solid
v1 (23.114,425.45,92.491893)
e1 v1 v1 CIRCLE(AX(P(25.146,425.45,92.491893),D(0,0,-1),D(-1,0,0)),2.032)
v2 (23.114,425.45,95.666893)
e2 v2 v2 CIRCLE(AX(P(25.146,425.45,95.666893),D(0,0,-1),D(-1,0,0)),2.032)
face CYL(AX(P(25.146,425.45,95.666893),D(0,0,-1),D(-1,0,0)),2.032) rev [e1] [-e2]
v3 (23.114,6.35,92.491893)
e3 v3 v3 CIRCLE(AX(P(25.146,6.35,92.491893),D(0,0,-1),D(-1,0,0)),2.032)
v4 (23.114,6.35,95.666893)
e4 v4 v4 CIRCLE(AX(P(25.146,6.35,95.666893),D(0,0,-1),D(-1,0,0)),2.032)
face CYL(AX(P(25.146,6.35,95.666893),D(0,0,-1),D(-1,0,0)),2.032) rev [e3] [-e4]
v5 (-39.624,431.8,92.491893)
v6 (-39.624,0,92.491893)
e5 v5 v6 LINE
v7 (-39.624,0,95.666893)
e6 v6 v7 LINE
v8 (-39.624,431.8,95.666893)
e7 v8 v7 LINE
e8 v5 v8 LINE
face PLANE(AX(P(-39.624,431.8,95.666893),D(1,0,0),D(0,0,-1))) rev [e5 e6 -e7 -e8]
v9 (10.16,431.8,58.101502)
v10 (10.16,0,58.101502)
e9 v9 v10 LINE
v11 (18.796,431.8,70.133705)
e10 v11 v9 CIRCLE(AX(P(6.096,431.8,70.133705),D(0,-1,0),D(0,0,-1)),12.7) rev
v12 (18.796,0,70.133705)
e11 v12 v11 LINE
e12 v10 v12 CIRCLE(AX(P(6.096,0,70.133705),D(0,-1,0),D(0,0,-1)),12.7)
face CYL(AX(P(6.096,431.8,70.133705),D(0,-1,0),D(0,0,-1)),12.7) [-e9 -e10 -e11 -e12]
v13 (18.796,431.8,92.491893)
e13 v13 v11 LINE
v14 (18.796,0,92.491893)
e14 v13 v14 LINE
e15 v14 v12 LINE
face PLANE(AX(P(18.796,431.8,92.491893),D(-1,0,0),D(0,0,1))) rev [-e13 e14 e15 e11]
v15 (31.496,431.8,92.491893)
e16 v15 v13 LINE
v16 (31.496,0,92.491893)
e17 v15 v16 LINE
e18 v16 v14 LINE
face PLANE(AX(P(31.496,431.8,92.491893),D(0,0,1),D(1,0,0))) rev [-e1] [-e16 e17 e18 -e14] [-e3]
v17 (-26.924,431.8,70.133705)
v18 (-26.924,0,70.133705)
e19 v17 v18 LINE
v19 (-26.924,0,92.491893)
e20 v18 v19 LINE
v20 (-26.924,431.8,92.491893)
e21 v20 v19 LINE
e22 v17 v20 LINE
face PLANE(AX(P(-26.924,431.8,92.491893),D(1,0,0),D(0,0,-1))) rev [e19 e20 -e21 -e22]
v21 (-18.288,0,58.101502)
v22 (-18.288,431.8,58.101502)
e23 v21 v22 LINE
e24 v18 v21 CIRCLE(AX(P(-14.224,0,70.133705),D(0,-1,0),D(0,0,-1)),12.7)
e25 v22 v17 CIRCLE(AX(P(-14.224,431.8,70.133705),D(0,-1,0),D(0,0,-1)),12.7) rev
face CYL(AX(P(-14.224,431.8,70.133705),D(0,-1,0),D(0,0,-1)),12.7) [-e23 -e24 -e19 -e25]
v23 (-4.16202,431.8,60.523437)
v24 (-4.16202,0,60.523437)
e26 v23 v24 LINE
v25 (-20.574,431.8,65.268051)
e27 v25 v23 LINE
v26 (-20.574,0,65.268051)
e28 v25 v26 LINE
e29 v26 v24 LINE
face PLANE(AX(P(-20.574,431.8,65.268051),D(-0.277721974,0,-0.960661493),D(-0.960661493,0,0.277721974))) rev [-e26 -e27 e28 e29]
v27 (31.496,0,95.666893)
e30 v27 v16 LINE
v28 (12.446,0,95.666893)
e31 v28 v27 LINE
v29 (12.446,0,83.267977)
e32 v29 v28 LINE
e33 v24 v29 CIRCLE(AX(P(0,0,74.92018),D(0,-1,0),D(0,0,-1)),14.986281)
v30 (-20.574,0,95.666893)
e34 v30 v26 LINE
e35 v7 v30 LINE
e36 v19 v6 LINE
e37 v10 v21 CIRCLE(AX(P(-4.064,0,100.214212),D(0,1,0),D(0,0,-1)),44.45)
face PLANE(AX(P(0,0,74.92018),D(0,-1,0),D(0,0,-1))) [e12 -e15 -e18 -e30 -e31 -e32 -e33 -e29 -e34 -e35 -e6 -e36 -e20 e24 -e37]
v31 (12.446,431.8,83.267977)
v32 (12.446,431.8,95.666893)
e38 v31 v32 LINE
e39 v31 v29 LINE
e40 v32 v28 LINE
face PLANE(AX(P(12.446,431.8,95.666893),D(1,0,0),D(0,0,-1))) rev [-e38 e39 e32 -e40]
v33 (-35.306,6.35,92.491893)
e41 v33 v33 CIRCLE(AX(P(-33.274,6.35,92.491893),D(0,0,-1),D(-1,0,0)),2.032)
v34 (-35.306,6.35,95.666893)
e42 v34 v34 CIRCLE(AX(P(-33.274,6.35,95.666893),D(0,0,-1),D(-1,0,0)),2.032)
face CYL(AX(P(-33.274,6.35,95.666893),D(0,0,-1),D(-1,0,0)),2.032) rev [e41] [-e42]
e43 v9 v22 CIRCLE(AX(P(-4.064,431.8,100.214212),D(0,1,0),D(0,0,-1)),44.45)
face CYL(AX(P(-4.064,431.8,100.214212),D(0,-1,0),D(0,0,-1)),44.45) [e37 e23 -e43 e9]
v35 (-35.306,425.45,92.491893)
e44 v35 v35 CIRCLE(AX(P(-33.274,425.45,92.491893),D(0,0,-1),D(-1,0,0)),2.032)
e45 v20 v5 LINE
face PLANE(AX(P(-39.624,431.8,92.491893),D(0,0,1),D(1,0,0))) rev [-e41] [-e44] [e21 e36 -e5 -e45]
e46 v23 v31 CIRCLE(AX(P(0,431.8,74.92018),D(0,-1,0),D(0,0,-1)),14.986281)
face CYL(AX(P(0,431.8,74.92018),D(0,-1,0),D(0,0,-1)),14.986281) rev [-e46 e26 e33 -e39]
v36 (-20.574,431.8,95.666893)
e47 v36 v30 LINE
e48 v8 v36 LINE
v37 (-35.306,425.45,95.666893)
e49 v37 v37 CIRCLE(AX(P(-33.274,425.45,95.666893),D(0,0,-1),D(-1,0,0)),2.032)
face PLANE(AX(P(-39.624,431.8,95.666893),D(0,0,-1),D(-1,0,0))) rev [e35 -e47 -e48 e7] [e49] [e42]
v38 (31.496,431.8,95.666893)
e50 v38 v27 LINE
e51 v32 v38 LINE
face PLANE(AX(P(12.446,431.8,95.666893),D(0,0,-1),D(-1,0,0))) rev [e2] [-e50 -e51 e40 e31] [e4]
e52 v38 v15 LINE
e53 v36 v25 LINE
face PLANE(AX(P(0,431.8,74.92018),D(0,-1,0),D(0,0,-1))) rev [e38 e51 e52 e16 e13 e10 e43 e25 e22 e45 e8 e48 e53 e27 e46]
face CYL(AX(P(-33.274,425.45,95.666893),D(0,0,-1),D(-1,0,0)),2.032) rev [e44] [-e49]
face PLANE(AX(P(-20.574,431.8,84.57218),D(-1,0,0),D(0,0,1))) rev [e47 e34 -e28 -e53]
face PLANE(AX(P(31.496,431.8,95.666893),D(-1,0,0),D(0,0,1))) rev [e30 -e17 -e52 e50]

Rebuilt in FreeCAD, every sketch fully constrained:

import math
import FreeCAD as App
import Part
import Sketcher
Q = App.Units.Quantity


def edges_at(feature, points):
    """Names of the edges that pass closest to the given points."""
    edges = feature.Shape.Edges
    near = lambda p: min(range(len(edges)), key=lambda i: edges[i].distToShape(Part.Vertex(*p))[0])
    return sorted({f"Edge{near(p) + 1}" for p in points})

doc = App.newDocument("Part")
body = doc.addObject("PartDesign::Body", "Body")

sketch1 = doc.addObject("Sketcher::SketchObject", "Sketch")
body.addObject(sketch1)
sketch1.AttachmentSupport = (doc.XZ_Plane, [""])
sketch1.MapMode = "FlatFace"
sketch1.addGeometry([
    Part.LineSegment(App.Vector(12.4, 83.3, 0), App.Vector(12.4, 95.7, 0)),
    Part.LineSegment(App.Vector(12.4, 95.7, 0), App.Vector(31.5, 95.7, 0)),
    Part.LineSegment(App.Vector(31.5, 95.7, 0), App.Vector(31.5, 92.5, 0)),
    Part.LineSegment(App.Vector(31.5, 92.5, 0), App.Vector(18.8, 92.5, 0)),
    Part.LineSegment(App.Vector(18.8, 92.5, 0), App.Vector(18.8, 62.1, 0)),
    Part.ArcOfCircle(Part.Circle(App.Vector(-4.1, 100.2, 0), App.Vector(0, 0, 1), 44.4), math.radians(-121), math.radians(-59)),
    Part.LineSegment(App.Vector(-26.9, 62.1, 0), App.Vector(-26.9, 92.5, 0)),
    Part.LineSegment(App.Vector(-26.9, 92.5, 0), App.Vector(-39.6, 92.5, 0)),
    Part.LineSegment(App.Vector(-39.6, 92.5, 0), App.Vector(-39.6, 95.7, 0)),
    Part.LineSegment(App.Vector(-39.6, 95.7, 0), App.Vector(-20.6, 95.7, 0)),
    Part.LineSegment(App.Vector(-20.6, 95.7, 0), App.Vector(-20.6, 65.3, 0)),
    Part.LineSegment(App.Vector(-20.6, 65.3, 0), App.Vector(-4.2, 60.5, 0)),
    Part.ArcOfCircle(Part.Circle(App.Vector(0, 74.9, 0), App.Vector(0, 0, 1), 15), math.radians(-106), math.radians(34)),
], False)
sketch1.addConstraint([
    Sketcher.Constraint("Coincident", 0, 2, 1, 1),
    Sketcher.Constraint("Coincident", 1, 2, 2, 1),
    Sketcher.Constraint("Coincident", 2, 2, 3, 1),
    Sketcher.Constraint("Coincident", 3, 2, 4, 1),
    Sketcher.Constraint("Coincident", 4, 2, 5, 2),
    Sketcher.Constraint("Coincident", 5, 1, 6, 1),
    Sketcher.Constraint("Coincident", 6, 2, 7, 1),
    Sketcher.Constraint("Coincident", 7, 2, 8, 1),
    Sketcher.Constraint("Coincident", 8, 2, 9, 1),
    Sketcher.Constraint("Coincident", 9, 2, 10, 1),
    Sketcher.Constraint("Coincident", 10, 2, 11, 1),
    Sketcher.Constraint("Tangent", 11, 2, 12, 1),
    Sketcher.Constraint("Coincident", 12, 2, 0, 1),
    Sketcher.Constraint("Vertical", 0),
    Sketcher.Constraint("Horizontal", 1),
    Sketcher.Constraint("Vertical", 2),
    Sketcher.Constraint("Horizontal", 3),
    Sketcher.Constraint("Vertical", 4),
    Sketcher.Constraint("Vertical", 6),
    Sketcher.Constraint("Horizontal", 7),
    Sketcher.Constraint("Vertical", 8),
    Sketcher.Constraint("Horizontal", 9),
    Sketcher.Constraint("Vertical", 10),
    Sketcher.Constraint("PointOnObject", 12, 3, -2),
    Sketcher.Constraint("Horizontal", 4, 2, 5, 1),
    Sketcher.Constraint("Horizontal", 3, 2, 6, 2),
    Sketcher.Constraint("Horizontal", 1, 2, 8, 2),
    Sketcher.Constraint("Equal", 3, 7),
    Sketcher.Constraint("Equal", 1, 9),
    Sketcher.Constraint("Equal", 6, 10),
    Sketcher.Constraint("Radius", 5, Q("1.75 in")),
    Sketcher.Constraint("DistanceX", 3, 2, 3, 1, Q("0.5 in")),
    Sketcher.Constraint("DistanceX", 1, 1, 1, 2, Q("0.75 in")),
    Sketcher.Constraint("DistanceX", 5, 3, 1, 2, Q("1.4 in")),
    Sketcher.Constraint("DistanceY", 2, 2, 2, 1, Q("0.125 in")),
    Sketcher.Constraint("DistanceX", 5, 3, -1, 1, Q("0.16 in")),
    Sketcher.Constraint("Radius", 12, 14.986281),
    Sketcher.Constraint("Distance", 11, Q("0.6726 in")),
    Sketcher.Constraint("DistanceY", 0, 1, 0, 2, 12.398916),
    Sketcher.Constraint("DistanceY", -1, 1, 5, 3, 100.214212),
])
pad1 = doc.addObject("PartDesign::Pad", "Pad")
body.addObject(pad1)
pad1.Profile = sketch1
pad1.Length = Q("17 in")
pad1.Reversed = True
doc.recompute()

fillet = doc.addObject("PartDesign::Fillet", "Fillet")
body.addObject(fillet)
fillet.Base = (pad1, edges_at(pad1, [(-26.924, 215.9, 62.093), (18.796, 215.9, 62.093)]))
fillet.Radius = Q("0.5 in")

sketch2 = doc.addObject("Sketcher::SketchObject", "Sketch001")
body.addObject(sketch2)
sketch2.AttachmentSupport = (doc.XY_Plane, [""])
sketch2.MapMode = "FlatFace"
sketch2.AttachmentOffset = App.Placement(App.Vector(0, 0, 92.491893), App.Rotation())
sketch2.addGeometry([
    Part.Circle(App.Vector(25.1, 425.4, 0), App.Vector(0, 0, 1), 2),
    Part.Circle(App.Vector(25.1, 6.3, 0), App.Vector(0, 0, 1), 2),
    Part.Circle(App.Vector(-33.3, 425.4, 0), App.Vector(0, 0, 1), 2),
    Part.Circle(App.Vector(-33.3, 6.3, 0), App.Vector(0, 0, 1), 2),
], False)
sketch2.addConstraint([
    Sketcher.Constraint("Equal", 0, 1),
    Sketcher.Constraint("Equal", 1, 2),
    Sketcher.Constraint("Equal", 2, 3),
    Sketcher.Constraint("Horizontal", 0, 3, 2, 3),
    Sketcher.Constraint("Horizontal", 1, 3, 3, 3),
    Sketcher.Constraint("Vertical", 0, 3, 1, 3),
    Sketcher.Constraint("Vertical", 2, 3, 3, 3),
    Sketcher.Constraint("Diameter", 0, Q("0.16 in")),
    Sketcher.Constraint("DistanceY", 1, 3, 0, 3, Q("16.5 in")),
    Sketcher.Constraint("DistanceX", 2, 3, 0, 3, Q("2.3 in")),
    Sketcher.Constraint("DistanceX", -1, 1, 0, 3, Q("0.99 in")),
    Sketcher.Constraint("DistanceY", -1, 1, 0, 3, Q("16.75 in")),
])
pocket1 = doc.addObject("PartDesign::Pocket", "Pocket")
body.addObject(pocket1)
pocket1.Profile = sketch2
pocket1.Type = "ThroughAll"
pocket1.Reversed = True

doc.recompute()
